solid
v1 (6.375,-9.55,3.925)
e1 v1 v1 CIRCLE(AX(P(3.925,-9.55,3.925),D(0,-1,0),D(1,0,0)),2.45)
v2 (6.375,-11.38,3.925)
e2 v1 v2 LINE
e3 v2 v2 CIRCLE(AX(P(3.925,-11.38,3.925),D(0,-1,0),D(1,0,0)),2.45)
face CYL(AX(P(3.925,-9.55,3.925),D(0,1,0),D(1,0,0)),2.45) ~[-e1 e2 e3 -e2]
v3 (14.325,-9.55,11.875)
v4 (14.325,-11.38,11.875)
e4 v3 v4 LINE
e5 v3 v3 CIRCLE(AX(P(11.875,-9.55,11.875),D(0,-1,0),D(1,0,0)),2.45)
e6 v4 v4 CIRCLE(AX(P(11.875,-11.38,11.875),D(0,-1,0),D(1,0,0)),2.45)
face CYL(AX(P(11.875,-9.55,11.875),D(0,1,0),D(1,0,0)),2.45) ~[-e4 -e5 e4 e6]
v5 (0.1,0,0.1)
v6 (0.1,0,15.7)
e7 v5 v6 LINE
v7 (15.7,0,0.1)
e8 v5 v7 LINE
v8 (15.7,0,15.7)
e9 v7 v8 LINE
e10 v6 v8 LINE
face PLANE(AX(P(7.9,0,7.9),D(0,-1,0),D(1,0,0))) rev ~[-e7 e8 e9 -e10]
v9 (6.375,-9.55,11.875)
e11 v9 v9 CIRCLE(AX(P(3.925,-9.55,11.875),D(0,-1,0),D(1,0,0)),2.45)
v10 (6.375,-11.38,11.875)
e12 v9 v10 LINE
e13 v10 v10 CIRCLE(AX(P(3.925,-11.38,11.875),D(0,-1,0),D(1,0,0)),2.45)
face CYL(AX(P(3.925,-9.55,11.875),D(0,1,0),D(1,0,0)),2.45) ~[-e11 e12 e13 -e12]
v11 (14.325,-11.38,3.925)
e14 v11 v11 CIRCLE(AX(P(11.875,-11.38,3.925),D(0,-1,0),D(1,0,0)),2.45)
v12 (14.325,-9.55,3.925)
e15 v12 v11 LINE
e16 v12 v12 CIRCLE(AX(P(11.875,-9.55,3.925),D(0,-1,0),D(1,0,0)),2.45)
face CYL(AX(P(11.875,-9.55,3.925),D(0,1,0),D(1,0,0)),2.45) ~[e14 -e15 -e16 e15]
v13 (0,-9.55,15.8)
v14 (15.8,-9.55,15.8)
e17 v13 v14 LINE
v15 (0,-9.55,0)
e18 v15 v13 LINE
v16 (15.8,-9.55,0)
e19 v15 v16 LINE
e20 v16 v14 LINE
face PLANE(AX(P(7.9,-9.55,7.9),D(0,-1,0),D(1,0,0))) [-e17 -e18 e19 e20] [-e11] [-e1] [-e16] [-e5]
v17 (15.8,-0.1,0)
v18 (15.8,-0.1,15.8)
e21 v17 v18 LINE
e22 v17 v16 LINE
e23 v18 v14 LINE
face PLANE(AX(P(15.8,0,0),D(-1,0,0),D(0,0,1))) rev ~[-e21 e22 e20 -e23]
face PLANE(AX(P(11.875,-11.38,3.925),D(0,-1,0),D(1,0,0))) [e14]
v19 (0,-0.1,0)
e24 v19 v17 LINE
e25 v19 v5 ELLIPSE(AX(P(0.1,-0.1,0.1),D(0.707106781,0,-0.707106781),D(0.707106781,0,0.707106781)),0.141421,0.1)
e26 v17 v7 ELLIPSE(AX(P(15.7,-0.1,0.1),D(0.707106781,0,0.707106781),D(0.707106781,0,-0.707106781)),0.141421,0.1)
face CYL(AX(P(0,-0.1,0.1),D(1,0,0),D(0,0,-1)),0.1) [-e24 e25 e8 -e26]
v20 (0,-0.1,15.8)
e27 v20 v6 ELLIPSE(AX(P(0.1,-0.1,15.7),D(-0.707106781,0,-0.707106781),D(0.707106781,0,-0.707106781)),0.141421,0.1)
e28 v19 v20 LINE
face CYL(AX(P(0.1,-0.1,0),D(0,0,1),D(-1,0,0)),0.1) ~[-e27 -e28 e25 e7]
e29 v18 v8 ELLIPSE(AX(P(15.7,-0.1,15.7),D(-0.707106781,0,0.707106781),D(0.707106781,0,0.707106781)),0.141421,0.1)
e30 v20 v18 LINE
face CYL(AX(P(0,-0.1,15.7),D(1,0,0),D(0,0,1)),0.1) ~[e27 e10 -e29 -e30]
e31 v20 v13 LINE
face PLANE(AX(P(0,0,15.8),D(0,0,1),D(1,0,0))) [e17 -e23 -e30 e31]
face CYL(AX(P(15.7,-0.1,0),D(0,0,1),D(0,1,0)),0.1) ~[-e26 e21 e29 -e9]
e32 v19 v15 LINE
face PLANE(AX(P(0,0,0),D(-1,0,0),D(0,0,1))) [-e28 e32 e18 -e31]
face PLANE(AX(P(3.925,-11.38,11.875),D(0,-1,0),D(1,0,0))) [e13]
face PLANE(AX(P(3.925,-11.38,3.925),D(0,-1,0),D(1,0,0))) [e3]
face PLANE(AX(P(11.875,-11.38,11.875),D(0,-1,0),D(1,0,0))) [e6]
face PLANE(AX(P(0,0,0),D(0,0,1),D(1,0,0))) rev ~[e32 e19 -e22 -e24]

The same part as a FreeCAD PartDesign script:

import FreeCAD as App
import Part
import Sketcher
from FreeCAD import Vector


def edges_at(feature, points):
    """Names of the edges that pass closest to the given points."""
    edges = feature.Shape.Edges
    near = lambda p: min(range(len(edges)), key=lambda i: edges[i].distToShape(Part.Vertex(*p))[0])
    return sorted({f"Edge{near(p) + 1}" for p in points})


def add_polygon(sketch, points):
    """Adds a closed chain of lines whose ends are joined by coincident constraints."""
    first, n = sketch.GeometryCount, len(points)
    for a, b in zip(points, points[1:] + points[:1]):
        sketch.addGeometry(Part.LineSegment(App.Vector(*a, 0), App.Vector(*b, 0)), False)
    for i in range(n):
        sketch.addConstraint(Sketcher.Constraint("Coincident", first + i, 2, first + (i + 1) % n, 1))

doc = App.newDocument("Part")
params = doc.addObject("Spreadsheet::Sheet", "Params")
for row, (alias, value) in enumerate([
    ("sketch1_width", "15.8 mm"),
    ("pad1_length", "9.55 mm"),
    ("sketch2_diameter", "4.9 mm"),
    ("pad2_length", "1.83 mm"),
    ("sketch3_diameter", "4.9 mm"),
    ("pad3_length", "1.83 mm"),
    ("fillet_radius", "0.1 mm"),
], start=1):
    params.set(f"A{row}", alias)
    params.set(f"B{row}", "=" + value)
    params.setAlias(f"B{row}", alias)

body = doc.addObject("PartDesign::Body", "Body")

# Sketch on XZ plane
sketch1 = body.newObject("Sketcher::SketchObject", "Sketch")
sketch1.AttachmentSupport = (doc.getObject("XZ_Plane"), [""])
sketch1.MapMode = "FlatFace"
add_polygon(sketch1, [(0, 16), (0, 0), (16, 0), (16, 16)])  # lines 0-3
sketch1.addConstraint(Sketcher.Constraint("Vertical", 0))
sketch1.addConstraint(Sketcher.Constraint("Horizontal", 1))
sketch1.addConstraint(Sketcher.Constraint("Vertical", 2))
sketch1.addConstraint(Sketcher.Constraint("Horizontal", 3))
sketch1.addConstraint(Sketcher.Constraint("Coincident", 0, 2, -1, 1))
sketch1.addConstraint(Sketcher.Constraint("Equal", 3, 0))
sketch1.addConstraint(Sketcher.Constraint("DistanceX", 1, 1, 1, 2, 15.8))
sketch1.setExpression("Constraints[10]", "Params.sketch1_width")
pad1 = body.newObject("PartDesign::Pad", "Pad")
pad1.Profile = sketch1
pad1.setExpression("Length", "Params.pad1_length")

# Sketch on XZ plane
sketch2 = body.newObject("Sketcher::SketchObject", "Sketch001")
sketch2.AttachmentSupport = (doc.getObject("XZ_Plane"), [""])
sketch2.MapMode = "FlatFace"
sketch2.AttachmentOffset = App.Placement(Vector(0, 0, 9.55), App.Rotation())
sketch2.addGeometry(Part.Circle(Vector(3.9, 11.9, 0), Vector(0, 0, 1), 2.5), False)
sketch2.addConstraint(Sketcher.Constraint("Diameter", 0, 4.9))
sketch2.addConstraint(Sketcher.Constraint("DistanceX", -1, 1, 0, 3, 3.925))
sketch2.addConstraint(Sketcher.Constraint("DistanceY", -1, 1, 0, 3, 11.875))
sketch2.setExpression("Constraints[0]", "Params.sketch2_diameter")
pad2 = body.newObject("PartDesign::Pad", "Pad001")
pad2.Profile = sketch2
pad2.setExpression("Length", "Params.pad2_length")

# Sketch on XZ plane
sketch3 = body.newObject("Sketcher::SketchObject", "Sketch002")
sketch3.AttachmentSupport = (doc.getObject("XZ_Plane"), [""])
sketch3.MapMode = "FlatFace"
sketch3.AttachmentOffset = App.Placement(Vector(0, 0, 9.55), App.Rotation())
sketch3.addGeometry(Part.Circle(Vector(11.9, 11.9, 0), Vector(0, 0, 1), 2.5), False)
sketch3.addGeometry(Part.Circle(Vector(3.9, 3.9, 0), Vector(0, 0, 1), 2.5), False)
sketch3.addGeometry(Part.Circle(Vector(11.9, 3.9, 0), Vector(0, 0, 1), 2.5), False)
sketch3.addConstraint(Sketcher.Constraint("Equal", 0, 1))
sketch3.addConstraint(Sketcher.Constraint("Equal", 1, 2))
sketch3.addConstraint(Sketcher.Constraint("Horizontal", 1, 3, 2, 3))
sketch3.addConstraint(Sketcher.Constraint("Vertical", 0, 3, 2, 3))
sketch3.addConstraint(Sketcher.Constraint("Diameter", 0, 4.9))
sketch3.addConstraint(Sketcher.Constraint("DistanceX", 1, 3, 0, 3, 7.95))
sketch3.addConstraint(Sketcher.Constraint("DistanceY", 1, 3, 0, 3, 7.95))
sketch3.addConstraint(Sketcher.Constraint("DistanceX", -1, 1, 0, 3, 11.875))
sketch3.addConstraint(Sketcher.Constraint("DistanceY", -1, 1, 0, 3, 11.875))
sketch3.setExpression("Constraints[4]", "Params.sketch3_diameter")
pad3 = body.newObject("PartDesign::Pad", "Pad002")
pad3.Profile = sketch3
pad3.setExpression("Length", "Params.pad3_length")
doc.recompute()

fillet = body.newObject("PartDesign::Fillet", "Fillet")
fillet.Base = (pad3, edges_at(pad3, [
    (7.9, 0, 15.8),
    (0, 0, 7.9),
    (7.9, 0, 0),
    (15.8, 0, 7.9),
]))
fillet.setExpression("Radius", "Params.fillet_radius")

doc.recompute()
